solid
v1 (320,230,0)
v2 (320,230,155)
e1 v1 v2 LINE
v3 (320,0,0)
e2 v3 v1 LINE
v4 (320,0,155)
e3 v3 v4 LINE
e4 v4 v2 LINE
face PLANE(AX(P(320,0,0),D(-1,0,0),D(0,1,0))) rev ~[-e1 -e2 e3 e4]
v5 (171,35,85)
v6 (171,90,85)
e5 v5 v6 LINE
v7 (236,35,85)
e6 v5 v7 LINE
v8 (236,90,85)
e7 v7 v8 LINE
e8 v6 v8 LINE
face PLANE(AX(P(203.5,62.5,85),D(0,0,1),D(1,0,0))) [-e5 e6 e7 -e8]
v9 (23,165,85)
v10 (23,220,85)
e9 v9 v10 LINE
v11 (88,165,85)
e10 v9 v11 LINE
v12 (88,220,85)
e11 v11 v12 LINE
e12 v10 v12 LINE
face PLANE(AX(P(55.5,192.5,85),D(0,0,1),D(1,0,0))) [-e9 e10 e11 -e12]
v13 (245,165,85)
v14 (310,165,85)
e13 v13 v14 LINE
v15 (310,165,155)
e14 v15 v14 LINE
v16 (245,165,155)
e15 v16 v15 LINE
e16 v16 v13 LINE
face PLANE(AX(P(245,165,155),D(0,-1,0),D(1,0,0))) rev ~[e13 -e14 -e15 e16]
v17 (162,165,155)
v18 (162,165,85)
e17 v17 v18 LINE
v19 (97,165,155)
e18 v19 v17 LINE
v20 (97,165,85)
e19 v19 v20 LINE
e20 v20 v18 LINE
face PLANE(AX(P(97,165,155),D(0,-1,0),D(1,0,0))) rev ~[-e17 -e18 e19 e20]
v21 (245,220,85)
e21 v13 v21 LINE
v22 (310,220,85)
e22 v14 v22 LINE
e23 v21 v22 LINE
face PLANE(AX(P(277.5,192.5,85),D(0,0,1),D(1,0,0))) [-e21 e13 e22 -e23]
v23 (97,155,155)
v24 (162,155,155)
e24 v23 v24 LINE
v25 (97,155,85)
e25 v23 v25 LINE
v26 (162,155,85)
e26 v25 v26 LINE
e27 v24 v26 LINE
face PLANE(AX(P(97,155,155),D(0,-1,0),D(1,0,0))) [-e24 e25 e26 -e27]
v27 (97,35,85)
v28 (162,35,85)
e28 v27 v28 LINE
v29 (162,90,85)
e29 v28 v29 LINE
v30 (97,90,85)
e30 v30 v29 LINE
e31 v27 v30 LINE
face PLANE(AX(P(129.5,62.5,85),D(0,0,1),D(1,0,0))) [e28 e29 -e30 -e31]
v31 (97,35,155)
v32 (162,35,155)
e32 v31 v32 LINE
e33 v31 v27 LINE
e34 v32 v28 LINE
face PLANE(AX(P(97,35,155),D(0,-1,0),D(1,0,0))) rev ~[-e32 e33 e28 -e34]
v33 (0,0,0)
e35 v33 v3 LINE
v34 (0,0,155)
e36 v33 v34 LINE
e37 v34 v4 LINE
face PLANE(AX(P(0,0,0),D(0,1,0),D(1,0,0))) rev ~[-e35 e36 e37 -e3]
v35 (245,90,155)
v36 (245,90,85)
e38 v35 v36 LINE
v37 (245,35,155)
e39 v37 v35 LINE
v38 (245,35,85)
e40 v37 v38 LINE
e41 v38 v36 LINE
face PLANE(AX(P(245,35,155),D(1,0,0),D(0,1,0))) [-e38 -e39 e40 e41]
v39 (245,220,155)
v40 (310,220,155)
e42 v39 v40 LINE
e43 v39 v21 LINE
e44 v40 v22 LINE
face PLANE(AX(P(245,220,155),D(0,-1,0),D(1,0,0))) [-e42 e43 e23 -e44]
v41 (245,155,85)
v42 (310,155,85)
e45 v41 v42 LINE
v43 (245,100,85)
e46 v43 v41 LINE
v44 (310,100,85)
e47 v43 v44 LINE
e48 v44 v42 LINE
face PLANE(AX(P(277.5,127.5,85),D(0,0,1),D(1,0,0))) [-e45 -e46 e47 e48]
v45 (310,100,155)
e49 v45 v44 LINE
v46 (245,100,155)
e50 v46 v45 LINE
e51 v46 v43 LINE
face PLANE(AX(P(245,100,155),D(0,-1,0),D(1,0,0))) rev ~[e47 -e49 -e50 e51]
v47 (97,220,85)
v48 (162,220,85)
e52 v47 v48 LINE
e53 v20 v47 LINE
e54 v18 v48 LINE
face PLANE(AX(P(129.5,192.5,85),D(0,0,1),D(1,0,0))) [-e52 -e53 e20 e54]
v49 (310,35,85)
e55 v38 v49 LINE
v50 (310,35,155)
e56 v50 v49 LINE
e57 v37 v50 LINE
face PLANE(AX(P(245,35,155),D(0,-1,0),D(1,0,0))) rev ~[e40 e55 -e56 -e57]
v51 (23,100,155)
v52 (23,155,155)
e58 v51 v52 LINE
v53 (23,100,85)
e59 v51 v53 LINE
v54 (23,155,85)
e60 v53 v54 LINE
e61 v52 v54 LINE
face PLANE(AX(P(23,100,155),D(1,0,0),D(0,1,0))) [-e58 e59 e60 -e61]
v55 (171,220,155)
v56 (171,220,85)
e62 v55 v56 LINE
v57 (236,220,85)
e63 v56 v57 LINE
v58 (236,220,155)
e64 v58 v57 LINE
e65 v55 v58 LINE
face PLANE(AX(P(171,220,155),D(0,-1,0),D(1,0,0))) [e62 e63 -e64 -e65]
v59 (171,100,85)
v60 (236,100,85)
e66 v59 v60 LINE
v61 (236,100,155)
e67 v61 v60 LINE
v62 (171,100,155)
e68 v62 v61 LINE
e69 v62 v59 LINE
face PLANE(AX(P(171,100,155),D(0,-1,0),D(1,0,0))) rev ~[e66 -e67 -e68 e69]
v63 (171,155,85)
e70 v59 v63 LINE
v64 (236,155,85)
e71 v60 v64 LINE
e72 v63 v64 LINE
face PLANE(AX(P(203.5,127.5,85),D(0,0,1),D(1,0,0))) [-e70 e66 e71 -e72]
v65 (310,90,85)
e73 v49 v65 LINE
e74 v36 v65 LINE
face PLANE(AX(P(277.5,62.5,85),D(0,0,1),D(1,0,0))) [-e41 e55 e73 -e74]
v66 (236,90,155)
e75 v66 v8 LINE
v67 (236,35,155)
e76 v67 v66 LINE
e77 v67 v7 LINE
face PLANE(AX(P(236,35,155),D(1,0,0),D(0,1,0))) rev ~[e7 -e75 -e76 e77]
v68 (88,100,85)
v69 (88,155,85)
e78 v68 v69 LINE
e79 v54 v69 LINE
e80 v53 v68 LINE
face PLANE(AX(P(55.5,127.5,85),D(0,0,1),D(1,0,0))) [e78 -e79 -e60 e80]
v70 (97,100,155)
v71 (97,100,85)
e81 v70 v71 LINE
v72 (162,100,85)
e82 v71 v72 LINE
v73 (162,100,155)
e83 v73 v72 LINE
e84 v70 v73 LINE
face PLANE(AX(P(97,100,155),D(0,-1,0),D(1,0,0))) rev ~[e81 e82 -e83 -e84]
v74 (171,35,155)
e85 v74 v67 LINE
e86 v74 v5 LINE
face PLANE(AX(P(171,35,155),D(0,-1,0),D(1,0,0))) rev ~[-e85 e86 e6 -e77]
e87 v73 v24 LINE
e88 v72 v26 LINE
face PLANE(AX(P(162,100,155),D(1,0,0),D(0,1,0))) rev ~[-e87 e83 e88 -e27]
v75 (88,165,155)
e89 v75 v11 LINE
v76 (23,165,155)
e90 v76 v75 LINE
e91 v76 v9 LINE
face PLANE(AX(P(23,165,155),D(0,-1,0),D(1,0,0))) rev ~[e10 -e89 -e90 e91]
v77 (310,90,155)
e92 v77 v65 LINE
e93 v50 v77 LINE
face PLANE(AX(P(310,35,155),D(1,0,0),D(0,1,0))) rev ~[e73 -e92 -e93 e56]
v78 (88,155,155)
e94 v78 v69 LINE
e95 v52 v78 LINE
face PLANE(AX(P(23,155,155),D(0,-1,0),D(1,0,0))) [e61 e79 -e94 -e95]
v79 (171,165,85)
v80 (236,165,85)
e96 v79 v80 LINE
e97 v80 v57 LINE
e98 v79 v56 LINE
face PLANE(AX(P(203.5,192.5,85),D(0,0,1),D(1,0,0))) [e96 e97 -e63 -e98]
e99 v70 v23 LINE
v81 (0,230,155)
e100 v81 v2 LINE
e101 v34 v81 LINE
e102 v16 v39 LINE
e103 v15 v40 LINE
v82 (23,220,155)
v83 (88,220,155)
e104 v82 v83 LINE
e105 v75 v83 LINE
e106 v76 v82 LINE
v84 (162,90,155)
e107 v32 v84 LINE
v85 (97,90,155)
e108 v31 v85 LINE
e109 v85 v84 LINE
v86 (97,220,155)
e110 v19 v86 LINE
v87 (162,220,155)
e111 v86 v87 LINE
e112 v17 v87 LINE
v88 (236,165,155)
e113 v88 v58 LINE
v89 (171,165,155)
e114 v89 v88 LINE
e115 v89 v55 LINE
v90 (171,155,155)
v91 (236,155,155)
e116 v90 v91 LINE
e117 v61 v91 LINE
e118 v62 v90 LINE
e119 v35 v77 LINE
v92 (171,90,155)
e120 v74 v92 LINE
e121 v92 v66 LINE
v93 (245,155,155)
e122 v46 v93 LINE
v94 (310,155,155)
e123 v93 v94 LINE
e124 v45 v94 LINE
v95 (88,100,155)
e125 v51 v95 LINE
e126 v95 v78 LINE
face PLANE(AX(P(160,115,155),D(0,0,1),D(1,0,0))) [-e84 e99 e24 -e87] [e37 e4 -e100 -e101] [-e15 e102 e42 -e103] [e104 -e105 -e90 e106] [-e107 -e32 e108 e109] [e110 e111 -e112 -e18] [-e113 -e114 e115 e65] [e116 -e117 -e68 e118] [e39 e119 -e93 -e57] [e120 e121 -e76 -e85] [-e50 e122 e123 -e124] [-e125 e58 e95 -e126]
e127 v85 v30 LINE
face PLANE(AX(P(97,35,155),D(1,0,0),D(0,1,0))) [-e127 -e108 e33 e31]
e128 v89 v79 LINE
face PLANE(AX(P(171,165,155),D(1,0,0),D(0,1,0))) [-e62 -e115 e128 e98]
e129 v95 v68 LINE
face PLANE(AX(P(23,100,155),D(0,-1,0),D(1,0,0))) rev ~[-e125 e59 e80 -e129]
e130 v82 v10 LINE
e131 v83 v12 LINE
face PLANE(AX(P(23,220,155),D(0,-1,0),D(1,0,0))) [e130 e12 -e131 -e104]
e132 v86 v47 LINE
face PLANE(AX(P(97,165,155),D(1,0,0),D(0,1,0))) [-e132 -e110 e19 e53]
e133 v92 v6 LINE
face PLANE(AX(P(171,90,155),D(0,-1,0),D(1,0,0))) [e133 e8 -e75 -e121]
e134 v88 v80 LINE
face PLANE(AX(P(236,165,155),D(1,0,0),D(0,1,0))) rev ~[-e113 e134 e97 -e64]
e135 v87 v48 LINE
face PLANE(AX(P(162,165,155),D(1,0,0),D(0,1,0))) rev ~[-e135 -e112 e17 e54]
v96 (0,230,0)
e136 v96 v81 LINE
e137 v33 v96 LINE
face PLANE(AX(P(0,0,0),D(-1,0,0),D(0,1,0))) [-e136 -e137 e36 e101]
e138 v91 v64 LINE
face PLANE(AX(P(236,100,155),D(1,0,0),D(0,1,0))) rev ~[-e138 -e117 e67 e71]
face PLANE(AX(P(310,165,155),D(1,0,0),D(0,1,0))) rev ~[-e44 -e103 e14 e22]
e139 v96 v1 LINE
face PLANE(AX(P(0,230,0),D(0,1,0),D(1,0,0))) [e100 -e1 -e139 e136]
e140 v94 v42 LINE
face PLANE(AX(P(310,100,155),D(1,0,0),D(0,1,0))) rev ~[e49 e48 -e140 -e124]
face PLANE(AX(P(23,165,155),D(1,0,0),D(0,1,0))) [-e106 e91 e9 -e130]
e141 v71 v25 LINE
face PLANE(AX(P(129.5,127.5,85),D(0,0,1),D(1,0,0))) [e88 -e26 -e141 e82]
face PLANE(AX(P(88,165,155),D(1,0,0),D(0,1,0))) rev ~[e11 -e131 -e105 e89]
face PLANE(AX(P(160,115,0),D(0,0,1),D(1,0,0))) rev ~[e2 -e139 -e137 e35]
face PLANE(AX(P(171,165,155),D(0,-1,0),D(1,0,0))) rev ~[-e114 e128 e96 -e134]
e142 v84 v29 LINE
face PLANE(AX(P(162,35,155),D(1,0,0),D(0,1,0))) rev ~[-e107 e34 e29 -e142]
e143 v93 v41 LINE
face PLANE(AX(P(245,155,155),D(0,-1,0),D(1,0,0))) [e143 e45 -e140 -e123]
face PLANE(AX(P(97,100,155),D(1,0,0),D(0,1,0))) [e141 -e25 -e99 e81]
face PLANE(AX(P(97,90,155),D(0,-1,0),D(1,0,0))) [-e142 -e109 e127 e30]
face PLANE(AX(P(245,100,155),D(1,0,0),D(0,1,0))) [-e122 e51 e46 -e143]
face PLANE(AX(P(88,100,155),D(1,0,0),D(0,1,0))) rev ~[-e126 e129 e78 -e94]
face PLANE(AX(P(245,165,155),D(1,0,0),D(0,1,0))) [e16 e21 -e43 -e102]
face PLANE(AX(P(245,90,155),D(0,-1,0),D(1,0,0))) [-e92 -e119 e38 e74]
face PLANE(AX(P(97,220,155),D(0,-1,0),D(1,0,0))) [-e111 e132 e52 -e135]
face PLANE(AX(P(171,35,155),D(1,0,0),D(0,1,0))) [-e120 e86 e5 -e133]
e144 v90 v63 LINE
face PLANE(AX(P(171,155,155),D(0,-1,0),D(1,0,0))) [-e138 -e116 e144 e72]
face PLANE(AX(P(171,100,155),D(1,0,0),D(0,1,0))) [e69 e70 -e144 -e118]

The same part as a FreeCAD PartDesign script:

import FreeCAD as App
import Part
import Sketcher
from FreeCAD import Vector


def add_polygon(sketch, points):
    """Adds a closed chain of lines whose ends are joined by coincident constraints."""
    first, n = sketch.GeometryCount, len(points)
    for a, b in zip(points, points[1:] + points[:1]):
        sketch.addGeometry(Part.LineSegment(App.Vector(*a, 0), App.Vector(*b, 0)), False)
    for i in range(n):
        sketch.addConstraint(Sketcher.Constraint("Coincident", first + i, 2, first + (i + 1) % n, 1))

doc = App.newDocument("Part")
body = doc.addObject("PartDesign::Body", "Body")

# Sketch on XY plane
sketch1 = body.newObject("Sketcher::SketchObject", "Sketch")
sketch1.AttachmentSupport = (doc.getObject("XY_Plane"), [""])
sketch1.MapMode = "FlatFace"
add_polygon(sketch1, [(0, 230), (0, 0), (320, 0), (320, 230)])  # lines 0-3
sketch1.addConstraint(Sketcher.Constraint("Vertical", 0))
sketch1.addConstraint(Sketcher.Constraint("Horizontal", 1))
sketch1.addConstraint(Sketcher.Constraint("Vertical", 2))
sketch1.addConstraint(Sketcher.Constraint("Horizontal", 3))
sketch1.addConstraint(Sketcher.Constraint("Coincident", 0, 2, -1, 1))
sketch1.addConstraint(Sketcher.Constraint("DistanceX", 1, 1, 1, 2, 320.0))
sketch1.addConstraint(Sketcher.Constraint("DistanceY", 0, 2, 0, 1, 230.0))
pad1 = body.newObject("PartDesign::Pad", "Pad")
pad1.Profile = sketch1
pad1.Length = 155

# Sketch on XY plane
sketch2 = body.newObject("Sketcher::SketchObject", "Sketch001")
sketch2.AttachmentSupport = (doc.getObject("XY_Plane"), [""])
sketch2.MapMode = "FlatFace"
sketch2.AttachmentOffset = App.Placement(Vector(0, 0, 155), App.Rotation())
add_polygon(sketch2, [(97, 155), (97, 100), (162, 100), (162, 155)])  # lines 0-3
add_polygon(sketch2, [(97, 220), (97, 165), (162, 165), (162, 220)])  # lines 4-7
add_polygon(sketch2, [(23, 220), (23, 165), (88, 165), (88, 220)])  # lines 8-11
add_polygon(sketch2, [(23, 155), (23, 100), (88, 100), (88, 155)])  # lines 12-15
add_polygon(sketch2, [(97, 90), (97, 35), (162, 35), (162, 90)])  # lines 16-19
add_polygon(sketch2, [(171, 90), (171, 35), (236, 35), (236, 90)])  # lines 20-23
add_polygon(sketch2, [(171, 155), (171, 100), (236, 100), (236, 155)])  # lines 24-27
add_polygon(sketch2, [(171, 220), (171, 165), (236, 165), (236, 220)])  # lines 28-31
add_polygon(sketch2, [(245, 220), (245, 165), (310, 165), (310, 220)])  # lines 32-35
add_polygon(sketch2, [(245, 155), (245, 100), (310, 100), (310, 155)])  # lines 36-39
add_polygon(sketch2, [(245, 90), (245, 35), (310, 35), (310, 90)])  # lines 40-43
sketch2.addConstraint(Sketcher.Constraint("Vertical", 0))
sketch2.addConstraint(Sketcher.Constraint("Horizontal", 1))
sketch2.addConstraint(Sketcher.Constraint("Vertical", 2))
sketch2.addConstraint(Sketcher.Constraint("Horizontal", 3))
sketch2.addConstraint(Sketcher.Constraint("Vertical", 4))
sketch2.addConstraint(Sketcher.Constraint("Horizontal", 5))
sketch2.addConstraint(Sketcher.Constraint("Vertical", 6))
sketch2.addConstraint(Sketcher.Constraint("Horizontal", 7))
sketch2.addConstraint(Sketcher.Constraint("Vertical", 8))
sketch2.addConstraint(Sketcher.Constraint("Horizontal", 9))
sketch2.addConstraint(Sketcher.Constraint("Vertical", 10))
sketch2.addConstraint(Sketcher.Constraint("Horizontal", 11))
sketch2.addConstraint(Sketcher.Constraint("Vertical", 12))
sketch2.addConstraint(Sketcher.Constraint("Horizontal", 13))
sketch2.addConstraint(Sketcher.Constraint("Vertical", 14))
sketch2.addConstraint(Sketcher.Constraint("Horizontal", 15))
sketch2.addConstraint(Sketcher.Constraint("Vertical", 16))
sketch2.addConstraint(Sketcher.Constraint("Horizontal", 17))
sketch2.addConstraint(Sketcher.Constraint("Vertical", 18))
sketch2.addConstraint(Sketcher.Constraint("Horizontal", 19))
sketch2.addConstraint(Sketcher.Constraint("Vertical", 20))
sketch2.addConstraint(Sketcher.Constraint("Horizontal", 21))
sketch2.addConstraint(Sketcher.Constraint("Vertical", 22))
sketch2.addConstraint(Sketcher.Constraint("Horizontal", 23))
sketch2.addConstraint(Sketcher.Constraint("Vertical", 24))
sketch2.addConstraint(Sketcher.Constraint("Horizontal", 25))
sketch2.addConstraint(Sketcher.Constraint("Vertical", 26))
sketch2.addConstraint(Sketcher.Constraint("Horizontal", 27))
sketch2.addConstraint(Sketcher.Constraint("Vertical", 28))
sketch2.addConstraint(Sketcher.Constraint("Horizontal", 29))
sketch2.addConstraint(Sketcher.Constraint("Vertical", 30))
sketch2.addConstraint(Sketcher.Constraint("Horizontal", 31))
sketch2.addConstraint(Sketcher.Constraint("Vertical", 32))
sketch2.addConstraint(Sketcher.Constraint("Horizontal", 33))
sketch2.addConstraint(Sketcher.Constraint("Vertical", 34))
sketch2.addConstraint(Sketcher.Constraint("Horizontal", 35))
sketch2.addConstraint(Sketcher.Constraint("Vertical", 36))
sketch2.addConstraint(Sketcher.Constraint("Horizontal", 37))
sketch2.addConstraint(Sketcher.Constraint("Vertical", 38))
sketch2.addConstraint(Sketcher.Constraint("Horizontal", 39))
sketch2.addConstraint(Sketcher.Constraint("Vertical", 40))
sketch2.addConstraint(Sketcher.Constraint("Horizontal", 41))
sketch2.addConstraint(Sketcher.Constraint("Vertical", 42))
sketch2.addConstraint(Sketcher.Constraint("Horizontal", 43))
sketch2.addConstraint(Sketcher.Constraint("Horizontal", 5, 2, 8, 2))
sketch2.addConstraint(Sketcher.Constraint("Horizontal", 7, 2, 10, 2))
sketch2.addConstraint(Sketcher.Constraint("Horizontal", 1, 2, 12, 2))
sketch2.addConstraint(Sketcher.Constraint("Horizontal", 3, 2, 14, 2))
sketch2.addConstraint(Sketcher.Constraint("Horizontal", 17, 2, 20, 2))
sketch2.addConstraint(Sketcher.Constraint("Horizontal", 19, 2, 22, 2))
sketch2.addConstraint(Sketcher.Constraint("Horizontal", 13, 2, 24, 2))
sketch2.addConstraint(Sketcher.Constraint("Horizontal", 15, 2, 26, 2))
sketch2.addConstraint(Sketcher.Constraint("Horizontal", 9, 2, 28, 2))
sketch2.addConstraint(Sketcher.Constraint("Horizontal", 11, 2, 30, 2))
sketch2.addConstraint(Sketcher.Constraint("Horizontal", 29, 2, 32, 2))
sketch2.addConstraint(Sketcher.Constraint("Horizontal", 31, 2, 34, 2))
sketch2.addConstraint(Sketcher.Constraint("Horizontal", 25, 2, 36, 2))
sketch2.addConstraint(Sketcher.Constraint("Horizontal", 27, 2, 38, 2))
sketch2.addConstraint(Sketcher.Constraint("Horizontal", 21, 2, 40, 2))
sketch2.addConstraint(Sketcher.Constraint("Horizontal", 23, 2, 42, 2))
sketch2.addConstraint(Sketcher.Constraint("Vertical", 3, 2, 4, 2))
sketch2.addConstraint(Sketcher.Constraint("Vertical", 2, 2, 5, 2))
sketch2.addConstraint(Sketcher.Constraint("Vertical", 11, 2, 12, 2))
sketch2.addConstraint(Sketcher.Constraint("Vertical", 10, 2, 13, 2))
sketch2.addConstraint(Sketcher.Constraint("Vertical", 7, 2, 16, 2))
sketch2.addConstraint(Sketcher.Constraint("Vertical", 6, 2, 17, 2))
sketch2.addConstraint(Sketcher.Constraint("Vertical", 23, 2, 24, 2))
sketch2.addConstraint(Sketcher.Constraint("Vertical", 22, 2, 25, 2))
sketch2.addConstraint(Sketcher.Constraint("Vertical", 27, 2, 28, 2))
sketch2.addConstraint(Sketcher.Constraint("Vertical", 26, 2, 29, 2))
sketch2.addConstraint(Sketcher.Constraint("Vertical", 35, 2, 36, 2))
sketch2.addConstraint(Sketcher.Constraint("Vertical", 34, 2, 37, 2))
sketch2.addConstraint(Sketcher.Constraint("Vertical", 39, 2, 40, 2))
sketch2.addConstraint(Sketcher.Constraint("Vertical", 38, 2, 41, 2))
sketch2.addConstraint(Sketcher.Constraint("Equal", 7, 9))
sketch2.addConstraint(Sketcher.Constraint("Equal", 19, 21))
sketch2.addConstraint(Sketcher.Constraint("Equal", 31, 33))
sketch2.addConstraint(Sketcher.Constraint("Equal", 2, 4))
sketch2.addConstraint(Sketcher.Constraint("Equal", 14, 16))
sketch2.addConstraint(Sketcher.Constraint("DistanceX", 1, 1, 1, 2, 65.0))
sketch2.addConstraint(Sketcher.Constraint("DistanceY", 0, 2, 0, 1, 55.0))
sketch2.addConstraint(Sketcher.Constraint("DistanceX", -1, 1, 0, 2, 97.0))
sketch2.addConstraint(Sketcher.Constraint("DistanceY", -1, 1, 0, 2, 100.0))
sketch2.addConstraint(Sketcher.Constraint("DistanceY", -1, 1, 4, 2, 165.0))
sketch2.addConstraint(Sketcher.Constraint("DistanceX", -1, 1, 8, 2, 23.0))
sketch2.addConstraint(Sketcher.Constraint("DistanceY", -1, 1, 16, 2, 35.0))
sketch2.addConstraint(Sketcher.Constraint("DistanceX", -1, 1, 20, 2, 171.0))
sketch2.addConstraint(Sketcher.Constraint("DistanceX", -1, 1, 32, 2, 245.0))
pocket1 = body.newObject("PartDesign::Pocket", "Pocket")
pocket1.Profile = sketch2
pocket1.Length = 70

doc.recompute()
